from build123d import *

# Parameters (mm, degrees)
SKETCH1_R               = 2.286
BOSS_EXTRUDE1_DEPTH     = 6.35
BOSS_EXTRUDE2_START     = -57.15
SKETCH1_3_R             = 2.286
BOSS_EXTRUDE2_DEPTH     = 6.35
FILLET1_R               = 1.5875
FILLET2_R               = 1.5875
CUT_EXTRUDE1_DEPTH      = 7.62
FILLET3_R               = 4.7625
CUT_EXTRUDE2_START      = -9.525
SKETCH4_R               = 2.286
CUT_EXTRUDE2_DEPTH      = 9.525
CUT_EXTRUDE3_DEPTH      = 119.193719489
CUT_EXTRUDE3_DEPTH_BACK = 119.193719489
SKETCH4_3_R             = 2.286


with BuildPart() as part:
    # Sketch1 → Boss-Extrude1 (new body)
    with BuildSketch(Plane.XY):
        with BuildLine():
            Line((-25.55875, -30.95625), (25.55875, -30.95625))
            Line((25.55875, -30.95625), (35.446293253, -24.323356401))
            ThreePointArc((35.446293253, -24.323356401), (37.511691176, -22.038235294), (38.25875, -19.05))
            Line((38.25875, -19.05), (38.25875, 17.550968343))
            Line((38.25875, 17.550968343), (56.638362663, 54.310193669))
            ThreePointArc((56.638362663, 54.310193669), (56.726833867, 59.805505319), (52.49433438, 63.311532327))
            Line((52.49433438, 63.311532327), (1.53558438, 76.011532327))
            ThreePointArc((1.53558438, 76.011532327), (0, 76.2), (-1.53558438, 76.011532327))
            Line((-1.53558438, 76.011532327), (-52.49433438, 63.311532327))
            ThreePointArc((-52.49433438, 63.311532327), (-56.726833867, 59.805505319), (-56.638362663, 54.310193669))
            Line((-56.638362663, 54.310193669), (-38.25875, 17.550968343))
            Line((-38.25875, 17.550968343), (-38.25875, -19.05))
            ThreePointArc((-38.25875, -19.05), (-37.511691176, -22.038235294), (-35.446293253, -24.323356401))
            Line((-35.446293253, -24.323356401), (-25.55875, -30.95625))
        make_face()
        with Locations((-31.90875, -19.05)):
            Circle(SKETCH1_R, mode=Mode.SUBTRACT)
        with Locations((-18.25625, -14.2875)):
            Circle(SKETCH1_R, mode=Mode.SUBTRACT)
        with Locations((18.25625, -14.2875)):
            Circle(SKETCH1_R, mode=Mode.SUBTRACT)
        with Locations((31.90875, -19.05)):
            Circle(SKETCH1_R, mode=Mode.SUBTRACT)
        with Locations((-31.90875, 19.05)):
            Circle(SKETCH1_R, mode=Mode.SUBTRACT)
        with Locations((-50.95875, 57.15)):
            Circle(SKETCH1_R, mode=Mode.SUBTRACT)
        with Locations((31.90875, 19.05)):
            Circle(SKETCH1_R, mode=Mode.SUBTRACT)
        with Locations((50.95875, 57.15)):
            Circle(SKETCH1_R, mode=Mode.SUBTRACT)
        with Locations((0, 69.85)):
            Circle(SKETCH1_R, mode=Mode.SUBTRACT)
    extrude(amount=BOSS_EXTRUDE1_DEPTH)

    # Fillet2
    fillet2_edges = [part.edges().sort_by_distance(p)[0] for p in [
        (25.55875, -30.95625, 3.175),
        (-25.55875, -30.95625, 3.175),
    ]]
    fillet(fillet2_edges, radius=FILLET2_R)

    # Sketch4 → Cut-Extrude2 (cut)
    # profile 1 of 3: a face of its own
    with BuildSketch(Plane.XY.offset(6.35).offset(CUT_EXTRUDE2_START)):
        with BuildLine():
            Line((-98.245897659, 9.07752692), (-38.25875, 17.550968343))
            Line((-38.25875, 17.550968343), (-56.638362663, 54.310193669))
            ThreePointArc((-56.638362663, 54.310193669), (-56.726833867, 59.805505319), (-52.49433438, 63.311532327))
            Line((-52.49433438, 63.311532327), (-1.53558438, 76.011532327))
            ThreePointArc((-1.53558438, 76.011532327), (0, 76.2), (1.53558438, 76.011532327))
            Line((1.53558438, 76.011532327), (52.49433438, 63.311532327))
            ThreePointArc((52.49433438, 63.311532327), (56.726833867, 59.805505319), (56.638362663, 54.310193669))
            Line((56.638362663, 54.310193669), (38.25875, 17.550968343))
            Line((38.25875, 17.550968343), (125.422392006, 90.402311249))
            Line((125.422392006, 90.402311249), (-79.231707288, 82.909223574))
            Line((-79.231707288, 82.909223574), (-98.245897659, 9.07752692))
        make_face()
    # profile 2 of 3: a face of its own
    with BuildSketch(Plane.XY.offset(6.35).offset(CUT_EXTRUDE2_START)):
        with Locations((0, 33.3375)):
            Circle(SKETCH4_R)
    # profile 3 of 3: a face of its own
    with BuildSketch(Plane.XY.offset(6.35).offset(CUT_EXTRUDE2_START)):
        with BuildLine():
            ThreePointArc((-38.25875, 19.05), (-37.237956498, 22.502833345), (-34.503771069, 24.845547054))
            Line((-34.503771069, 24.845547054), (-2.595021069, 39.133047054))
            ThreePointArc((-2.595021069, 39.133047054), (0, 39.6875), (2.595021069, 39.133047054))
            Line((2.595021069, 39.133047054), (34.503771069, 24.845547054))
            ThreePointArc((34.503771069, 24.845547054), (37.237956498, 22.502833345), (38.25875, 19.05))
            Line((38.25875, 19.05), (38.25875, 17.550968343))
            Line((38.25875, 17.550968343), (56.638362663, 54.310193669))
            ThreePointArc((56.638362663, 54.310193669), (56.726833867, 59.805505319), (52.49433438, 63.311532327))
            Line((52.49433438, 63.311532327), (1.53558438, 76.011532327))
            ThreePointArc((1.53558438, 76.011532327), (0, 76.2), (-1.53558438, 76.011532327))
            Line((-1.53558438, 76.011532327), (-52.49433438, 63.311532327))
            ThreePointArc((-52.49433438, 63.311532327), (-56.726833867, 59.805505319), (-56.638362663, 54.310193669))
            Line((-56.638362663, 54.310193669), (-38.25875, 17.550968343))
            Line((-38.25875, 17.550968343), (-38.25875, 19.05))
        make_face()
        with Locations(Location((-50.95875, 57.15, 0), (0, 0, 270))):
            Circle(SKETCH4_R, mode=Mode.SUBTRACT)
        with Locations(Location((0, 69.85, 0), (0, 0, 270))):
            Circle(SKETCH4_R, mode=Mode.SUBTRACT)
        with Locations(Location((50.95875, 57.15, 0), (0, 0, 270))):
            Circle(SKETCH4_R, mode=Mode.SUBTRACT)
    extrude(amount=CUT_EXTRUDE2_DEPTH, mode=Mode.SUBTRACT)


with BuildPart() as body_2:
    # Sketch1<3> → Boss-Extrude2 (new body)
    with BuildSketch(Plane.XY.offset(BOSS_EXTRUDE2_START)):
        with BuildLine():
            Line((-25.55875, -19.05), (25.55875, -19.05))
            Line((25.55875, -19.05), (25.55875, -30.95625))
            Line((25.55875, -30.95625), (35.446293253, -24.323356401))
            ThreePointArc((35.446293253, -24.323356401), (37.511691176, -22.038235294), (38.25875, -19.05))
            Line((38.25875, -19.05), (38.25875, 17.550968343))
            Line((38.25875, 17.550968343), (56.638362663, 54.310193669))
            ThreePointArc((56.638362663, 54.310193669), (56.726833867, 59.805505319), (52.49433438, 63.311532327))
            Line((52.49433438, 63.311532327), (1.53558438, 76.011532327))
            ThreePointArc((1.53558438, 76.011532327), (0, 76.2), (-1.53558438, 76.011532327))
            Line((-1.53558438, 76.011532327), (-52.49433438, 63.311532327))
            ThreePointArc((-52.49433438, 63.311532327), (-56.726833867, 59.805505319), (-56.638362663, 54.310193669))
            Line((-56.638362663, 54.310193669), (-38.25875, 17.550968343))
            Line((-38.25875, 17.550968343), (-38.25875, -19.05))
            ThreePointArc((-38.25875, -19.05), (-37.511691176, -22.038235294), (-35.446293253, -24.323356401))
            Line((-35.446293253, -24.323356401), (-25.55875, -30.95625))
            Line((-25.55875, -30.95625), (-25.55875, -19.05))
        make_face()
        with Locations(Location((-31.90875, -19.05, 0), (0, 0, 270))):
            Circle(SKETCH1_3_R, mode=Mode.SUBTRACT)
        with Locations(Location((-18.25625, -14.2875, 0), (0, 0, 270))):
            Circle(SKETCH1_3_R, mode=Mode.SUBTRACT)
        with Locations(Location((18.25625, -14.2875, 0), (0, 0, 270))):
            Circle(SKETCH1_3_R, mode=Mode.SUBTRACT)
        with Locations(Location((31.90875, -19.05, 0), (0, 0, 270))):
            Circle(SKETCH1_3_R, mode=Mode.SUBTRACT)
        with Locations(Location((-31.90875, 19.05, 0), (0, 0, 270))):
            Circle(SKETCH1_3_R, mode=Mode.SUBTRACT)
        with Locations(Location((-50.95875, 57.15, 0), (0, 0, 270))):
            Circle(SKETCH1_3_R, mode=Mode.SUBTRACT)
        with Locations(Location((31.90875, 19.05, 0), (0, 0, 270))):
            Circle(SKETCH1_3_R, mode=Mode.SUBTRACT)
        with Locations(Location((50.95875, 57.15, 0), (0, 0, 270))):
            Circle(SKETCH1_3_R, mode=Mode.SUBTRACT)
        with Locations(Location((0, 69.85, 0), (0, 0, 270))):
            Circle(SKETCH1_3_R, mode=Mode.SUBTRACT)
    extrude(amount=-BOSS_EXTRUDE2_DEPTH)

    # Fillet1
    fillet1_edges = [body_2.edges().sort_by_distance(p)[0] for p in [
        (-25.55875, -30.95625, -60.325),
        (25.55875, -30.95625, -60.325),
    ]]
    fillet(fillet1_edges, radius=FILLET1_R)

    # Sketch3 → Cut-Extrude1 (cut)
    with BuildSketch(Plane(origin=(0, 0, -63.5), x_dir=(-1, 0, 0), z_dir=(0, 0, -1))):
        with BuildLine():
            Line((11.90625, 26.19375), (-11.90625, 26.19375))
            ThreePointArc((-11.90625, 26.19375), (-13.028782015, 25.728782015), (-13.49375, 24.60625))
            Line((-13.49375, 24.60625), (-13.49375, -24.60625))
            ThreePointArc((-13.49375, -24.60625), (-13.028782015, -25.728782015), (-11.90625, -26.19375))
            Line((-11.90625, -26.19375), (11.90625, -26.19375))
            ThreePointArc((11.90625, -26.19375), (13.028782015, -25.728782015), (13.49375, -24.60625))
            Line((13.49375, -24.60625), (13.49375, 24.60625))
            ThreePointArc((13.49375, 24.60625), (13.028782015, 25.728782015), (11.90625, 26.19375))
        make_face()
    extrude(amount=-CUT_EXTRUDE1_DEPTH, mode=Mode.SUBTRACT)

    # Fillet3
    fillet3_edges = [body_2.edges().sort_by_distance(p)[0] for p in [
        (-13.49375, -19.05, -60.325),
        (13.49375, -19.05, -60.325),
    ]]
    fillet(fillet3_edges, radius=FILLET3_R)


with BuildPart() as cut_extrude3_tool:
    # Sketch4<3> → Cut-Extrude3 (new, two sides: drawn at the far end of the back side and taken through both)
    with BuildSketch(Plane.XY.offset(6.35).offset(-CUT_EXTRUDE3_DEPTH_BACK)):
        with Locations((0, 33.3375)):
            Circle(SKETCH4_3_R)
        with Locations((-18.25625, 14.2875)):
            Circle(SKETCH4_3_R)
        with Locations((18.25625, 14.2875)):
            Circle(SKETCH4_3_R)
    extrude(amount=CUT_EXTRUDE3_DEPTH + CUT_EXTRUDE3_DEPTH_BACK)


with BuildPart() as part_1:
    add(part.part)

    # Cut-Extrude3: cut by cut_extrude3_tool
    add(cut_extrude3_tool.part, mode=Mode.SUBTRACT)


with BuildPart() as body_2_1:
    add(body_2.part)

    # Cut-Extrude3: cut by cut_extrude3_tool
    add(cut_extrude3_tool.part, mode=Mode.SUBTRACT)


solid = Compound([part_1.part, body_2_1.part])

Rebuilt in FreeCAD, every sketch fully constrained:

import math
import FreeCAD as App
import Part
import Sketcher
Q = App.Units.Quantity


def edges_at(feature, points):
    """Names of the edges that pass closest to the given points."""
    edges = feature.Shape.Edges
    near = lambda p: min(range(len(edges)), key=lambda i: edges[i].distToShape(Part.Vertex(*p))[0])
    return sorted({f"Edge{near(p) + 1}" for p in points})

doc = App.newDocument("Part")
params = doc.addObject("Spreadsheet::Sheet", "Params")
for row, (alias, value) in enumerate([
    ("sketch1_diameter", "0.18 in"),
    ("sketch1_radius", "0.25 in"),
    ("sketch1_length", "0.46875 in"),
    ("pad1_length", "0.25 in"),
    ("fillet_radius", "0.0625 in"),
    ("sketch2_diameter", "0.18 in"),
    ("sketch2_radius", "0.25 in"),
    ("pocket1_length", "0.375 in"),
    ("sketch3_diameter", "0.18 in"),
    ("sketch3_radius", "0.25 in"),
    ("sketch3_height", "0.46875 in"),
    ("pad2_length", "0.25 in"),
    ("fillet2_radius", "0.0625 in"),
    ("sketch4_radius", "0.0625 in"),
    ("pocket2_length", "0.3 in"),
    ("fillet3_radius", "0.1875 in"),
    ("sketch5_diameter", "0.18 in"),
    ("pad3_length", "119.193719 mm"),
    ("pad3_length2", "119.193719 mm"),
], start=1):
    params.set(f"A{row}", alias)
    params.set(f"B{row}", "=" + value)
    params.setAlias(f"B{row}", alias)

body = doc.addObject("PartDesign::Body", "Body")

# Sketch on XY plane
sketch1 = body.newObject("Sketcher::SketchObject", "Sketch")
sketch1.AttachmentSupport = (doc.getObject("XY_Plane"), [""])
sketch1.MapMode = "FlatFace"
sketch1.addGeometry([
    Part.LineSegment(App.Vector(-25.6, -31, 0), App.Vector(25.6, -31, 0)),  # 0
    Part.LineSegment(App.Vector(25.6, -31, 0), App.Vector(35.4, -24.3, 0)),  # 1
    Part.ArcOfCircle(Part.Circle(App.Vector(31.9, -19, 0), App.Vector(0, 0, 1), 6.4), math.radians(-56), math.radians(0)),  # 2
    Part.LineSegment(App.Vector(38.3, -19.1, 0), App.Vector(38.3, 17.6, 0)),  # 3
    Part.LineSegment(App.Vector(38.3, 17.6, 0), App.Vector(56.6, 54.3, 0)),  # 4
    Part.ArcOfCircle(Part.Circle(App.Vector(51, 57.1, 0), App.Vector(0, 0, 1), 6.4), math.radians(-27), math.radians(76)),  # 5
    Part.LineSegment(App.Vector(52.5, 63.3, 0), App.Vector(1.5, 76, 0)),  # 6
    Part.ArcOfCircle(Part.Circle(App.Vector(0, 69.8, 0), App.Vector(0, 0, 1), 6.4), math.radians(76), math.radians(104)),  # 7
    Part.LineSegment(App.Vector(-1.5, 76, 0), App.Vector(-52.5, 63.3, 0)),  # 8
    Part.ArcOfCircle(Part.Circle(App.Vector(-51, 57.1, 0), App.Vector(0, 0, 1), 6.4), math.radians(104), math.radians(207)),  # 9
    Part.LineSegment(App.Vector(-56.6, 54.3, 0), App.Vector(-38.3, 17.6, 0)),  # 10
    Part.LineSegment(App.Vector(-38.3, 17.6, 0), App.Vector(-38.3, -19.1, 0)),  # 11
    Part.ArcOfCircle(Part.Circle(App.Vector(-31.9, -19, 0), App.Vector(0, 0, 1), 6.4), math.radians(-180), math.radians(-124)),  # 12
    Part.LineSegment(App.Vector(-35.4, -24.3, 0), App.Vector(-25.6, -31, 0)),  # 13
    Part.Circle(App.Vector(-31.9, -19.1, 0), App.Vector(0, 0, 1), 2.3),  # 14
    Part.Circle(App.Vector(-18.3, -14.3, 0), App.Vector(0, 0, 1), 2.3),  # 15
    Part.Circle(App.Vector(-31.9, 19.1, 0), App.Vector(0, 0, 1), 2.3),  # 16
    Part.Circle(App.Vector(18.3, -14.3, 0), App.Vector(0, 0, 1), 2.3),  # 17
    Part.Circle(App.Vector(31.9, -19.1, 0), App.Vector(0, 0, 1), 2.3),  # 18
    Part.Circle(App.Vector(31.9, 19.1, 0), App.Vector(0, 0, 1), 2.3),  # 19
    Part.Circle(App.Vector(-51, 57.1, 0), App.Vector(0, 0, 1), 2.3),  # 20
    Part.Circle(App.Vector(0, 69.8, 0), App.Vector(0, 0, 1), 2.3),  # 21
    Part.Circle(App.Vector(51, 57.1, 0), App.Vector(0, 0, 1), 2.3),  # 22
], False)
sketch1.addConstraint([
    Sketcher.Constraint("Coincident", 0, 2, 1, 1),
    Sketcher.Constraint("Tangent", 1, 2, 2, 1),
    Sketcher.Constraint("Tangent", 2, 2, 3, 1),
    Sketcher.Constraint("Coincident", 3, 2, 4, 1),
    Sketcher.Constraint("Tangent", 4, 2, 5, 1),
    Sketcher.Constraint("Tangent", 5, 2, 6, 1),
    Sketcher.Constraint("Tangent", 6, 2, 7, 1),
    Sketcher.Constraint("Tangent", 7, 2, 8, 1),
    Sketcher.Constraint("Tangent", 8, 2, 9, 1),
    Sketcher.Constraint("Tangent", 9, 2, 10, 1),
    Sketcher.Constraint("Coincident", 10, 2, 11, 1),
    Sketcher.Constraint("Tangent", 11, 2, 12, 1),
    Sketcher.Constraint("Tangent", 12, 2, 13, 1),
    Sketcher.Constraint("Coincident", 13, 2, 0, 1),
    Sketcher.Constraint("Horizontal", 0),
    Sketcher.Constraint("Vertical", 3),
    Sketcher.Constraint("Vertical", 11),
    Sketcher.Constraint("Coincident", 14, 3, 12, 3),
    Sketcher.Constraint("Coincident", 18, 3, 2, 3),
    Sketcher.Constraint("Coincident", 20, 3, 9, 3),
    Sketcher.Constraint("Coincident", 21, 3, 7, 3),
    Sketcher.Constraint("Coincident", 22, 3, 5, 3),
    Sketcher.Constraint("Equal", 2, 5),
    Sketcher.Constraint("Equal", 5, 7),
    Sketcher.Constraint("Equal", 7, 9),
    Sketcher.Constraint("Equal", 9, 12),
    Sketcher.Constraint("Equal", 14, 15),
    Sketcher.Constraint("Equal", 15, 16),
    Sketcher.Constraint("Equal", 16, 17),
    Sketcher.Constraint("Equal", 17, 18),
    Sketcher.Constraint("Equal", 18, 19),
    Sketcher.Constraint("Equal", 19, 20),
    Sketcher.Constraint("Equal", 20, 21),
    Sketcher.Constraint("Equal", 21, 22),
    Sketcher.Constraint("Symmetric", 2, 3, 16, 3, -1, 1),
    Sketcher.Constraint("Symmetric", 12, 3, 19, 3, -1, 1),
    Sketcher.Constraint("Symmetric", 5, 3, 9, 3, -2),
    Sketcher.Constraint("Symmetric", 2, 3, 12, 3, -2),
    Sketcher.Constraint("Symmetric", 15, 3, 17, 3, -2),
    Sketcher.Constraint("PointOnObject", 7, 3, -2),
    Sketcher.Constraint("Horizontal", 4, 2, 9, 2),
    Sketcher.Constraint("Horizontal", 1, 2, 12, 2),
    Sketcher.Constraint("Diameter", 14, Q("0.18 in")),
    Sketcher.Constraint("Radius", 2, Q("0.25 in")),
    Sketcher.Constraint("DistanceY", 2, 3, 5, 3, Q("3 in")),
    Sketcher.Constraint("DistanceY", 16, 3, 7, 3, Q("2 in")),
    Sketcher.Constraint("DistanceY", 5, 3, 7, 3, Q("0.5 in")),
    Sketcher.Constraint("DistanceX", 0, 2, 2, 2, Q("0.5 in")),
    Sketcher.Constraint("DistanceX", 2, 3, 5, 3, Q("0.75 in")),
    Sketcher.Constraint("Distance", 1, Q("0.46875 in")),
    Sketcher.Constraint("DistanceX", 0, 1, 0, 2, Q("2.0125 in")),
    Sketcher.Constraint("DistanceX", 15, 3, -1, 1, Q("0.71875 in")),
    Sketcher.Constraint("DistanceY", 15, 3, -1, 1, Q("0.5625 in")),
    Sketcher.Constraint("DistanceY", 3, 1, 3, 2, Q("36.600968 mm")),
])
sketch1.setExpression("Constraints[42]", "Params.sketch1_diameter")
sketch1.setExpression("Constraints[43]", "Params.sketch1_radius")
sketch1.setExpression("Constraints[49]", "Params.sketch1_length")
pad1 = body.newObject("PartDesign::Pad", "Pad")
pad1.Profile = sketch1
pad1.setExpression("Length", "Params.pad1_length")
doc.recompute()

fillet = body.newObject("PartDesign::Fillet", "Fillet")
fillet.Base = (pad1, edges_at(pad1, [(25.559, -30.956, 3.175), (-25.559, -30.956, 3.175)]))
fillet.setExpression("Radius", "Params.fillet_radius")

# Sketch on XY plane
sketch2 = body.newObject("Sketcher::SketchObject", "Sketch001")
sketch2.AttachmentSupport = (doc.getObject("XY_Plane"), [""])
sketch2.MapMode = "FlatFace"
sketch2.AttachmentOffset = App.Placement(App.Vector(0, 0, -0.125 * 25.4), App.Rotation())
sketch2.addGeometry([
    Part.LineSegment(App.Vector(-98.2, 9.1, 0), App.Vector(-38.3, 17.6, 0)),  # 0
    Part.LineSegment(App.Vector(-38.3, 17.6, 0), App.Vector(-38.3, 19.1, 0)),  # 1
    Part.ArcOfCircle(Part.Circle(App.Vector(-31.9, 19.1, 0), App.Vector(0, 0, 1), 6.3), math.radians(114), math.radians(180)),  # 2
    Part.LineSegment(App.Vector(-34.5, 24.8, 0), App.Vector(-2.6, 39.1, 0)),  # 3
    Part.ArcOfCircle(Part.Circle(App.Vector(0, 33.3, 0), App.Vector(0, 0, 1), 6.4), math.radians(66), math.radians(114)),  # 4
    Part.LineSegment(App.Vector(2.6, 39.1, 0), App.Vector(34.5, 24.8, 0)),  # 5
    Part.ArcOfCircle(Part.Circle(App.Vector(31.9, 19.1, 0), App.Vector(0, 0, 1), 6.3), math.radians(0), math.radians(66)),  # 6
    Part.LineSegment(App.Vector(38.3, 19.1, 0), App.Vector(38.3, 17.6, 0)),  # 7
    Part.LineSegment(App.Vector(38.3, 17.6, 0), App.Vector(125.4, 90.4, 0)),  # 8
    Part.LineSegment(App.Vector(125.4, 90.4, 0), App.Vector(-79.2, 82.9, 0)),  # 9
    Part.LineSegment(App.Vector(-79.2, 82.9, 0), App.Vector(-98.2, 9.1, 0)),  # 10
    Part.Circle(App.Vector(0, 69.8, 0), App.Vector(0, 0, 1), 2.3),  # 11
    Part.Circle(App.Vector(51, 57.1, 0), App.Vector(0, 0, 1), 2.3),  # 12
    Part.Circle(App.Vector(-51, 57.1, 0), App.Vector(0, 0, 1), 2.3),  # 13
    Part.Circle(App.Vector(0, 33.3, 0), App.Vector(0, 0, 1), 2.3),  # 14
], False)
sketch2.addConstraint([
    Sketcher.Constraint("Coincident", 0, 2, 1, 1),
    Sketcher.Constraint("Tangent", 1, 2, 2, 2),
    Sketcher.Constraint("Tangent", 2, 1, 3, 1),
    Sketcher.Constraint("Tangent", 3, 2, 4, 2),
    Sketcher.Constraint("Tangent", 4, 1, 5, 1),
    Sketcher.Constraint("Tangent", 5, 2, 6, 2),
    Sketcher.Constraint("Tangent", 6, 1, 7, 1),
    Sketcher.Constraint("Coincident", 7, 2, 8, 1),
    Sketcher.Constraint("Coincident", 8, 2, 9, 1),
    Sketcher.Constraint("Coincident", 9, 2, 10, 1),
    Sketcher.Constraint("Coincident", 10, 2, 0, 1),
    Sketcher.Constraint("Vertical", 1),
    Sketcher.Constraint("Vertical", 7),
    Sketcher.Constraint("Coincident", 14, 3, 4, 3),
    Sketcher.Constraint("Equal", 2, 4),
    Sketcher.Constraint("Equal", 4, 6),
    Sketcher.Constraint("Equal", 11, 12),
    Sketcher.Constraint("Equal", 12, 13),
    Sketcher.Constraint("Equal", 13, 14),
    Sketcher.Constraint("Symmetric", 2, 3, 6, 3, -2),
    Sketcher.Constraint("Symmetric", 12, 3, 13, 3, -2),
    Sketcher.Constraint("PointOnObject", 4, 3, -2),
    Sketcher.Constraint("PointOnObject", 11, 3, -2),
    Sketcher.Constraint("Horizontal", 0, 2, 7, 2),
    Sketcher.Constraint("Diameter", 11, Q("0.18 in")),
    Sketcher.Constraint("Radius", 2, Q("0.25 in")),
    Sketcher.Constraint("DistanceY", 2, 3, 11, 3, Q("2 in")),
    Sketcher.Constraint("DistanceY", 6, 3, 12, 3, Q("1.5 in")),
    Sketcher.Constraint("DistanceX", 13, 3, 0, 2, Q("0.5 in")),
    Sketcher.Constraint("DistanceY", -1, 1, 2, 3, Q("0.75 in")),
    Sketcher.Constraint("DistanceY", -1, 1, 4, 3, Q("1.3125 in")),
    Sketcher.Constraint("DistanceX", 2, 3, 6, 3, Q("2.5125 in")),
    Sketcher.Constraint("DistanceY", 10, 2, 0, 2, Q("0.3336001 in")),
    Sketcher.Constraint("DistanceY", 1, 1, 1, 2, Q("1.499032 mm")),
    Sketcher.Constraint("DistanceY", -1, 1, 8, 2, Q("90.402311 mm")),
    Sketcher.Constraint("DistanceX", 5, 2, 8, 2, Q("90.918621 mm")),
    Sketcher.Constraint("Distance", 0, Q("60.582647 mm")),
    Sketcher.Constraint("Distance", 9, Q("204.791227 mm")),
    Sketcher.Constraint("Distance", 10, Q("76.240795 mm")),
])
sketch2.setExpression("Constraints[24]", "Params.sketch2_diameter")
sketch2.setExpression("Constraints[25]", "Params.sketch2_radius")
pocket1 = body.newObject("PartDesign::Pocket", "Pocket")
pocket1.Profile = sketch2
pocket1.setExpression("Length", "Params.pocket1_length")
pocket1.Reversed = True
body2 = doc.addObject("PartDesign::Body", "Body001")

# Sketch on XY plane
sketch3 = body2.newObject("Sketcher::SketchObject", "Sketch002")
sketch3.AttachmentSupport = (doc.getObject("XY_Plane001"), [""])
sketch3.MapMode = "FlatFace"
sketch3.AttachmentOffset = App.Placement(App.Vector(0, 0, -2.25 * 25.4), App.Rotation())
sketch3.addGeometry([
    Part.LineSegment(App.Vector(-25.6, -19.1, 0), App.Vector(25.6, -19.1, 0)),  # 0
    Part.LineSegment(App.Vector(25.6, -19.1, 0), App.Vector(25.6, -31, 0)),  # 1
    Part.LineSegment(App.Vector(25.6, -31, 0), App.Vector(35.4, -24.3, 0)),  # 2
    Part.ArcOfCircle(Part.Circle(App.Vector(31.9, -19, 0), App.Vector(0, 0, 1), 6.4), math.radians(-56), math.radians(0)),  # 3
    Part.LineSegment(App.Vector(38.3, -19.1, 0), App.Vector(38.3, 17.6, 0)),  # 4
    Part.LineSegment(App.Vector(38.3, 17.6, 0), App.Vector(56.6, 54.3, 0)),  # 5
    Part.ArcOfCircle(Part.Circle(App.Vector(51, 57.1, 0), App.Vector(0, 0, 1), 6.4), math.radians(-27), math.radians(76)),  # 6
    Part.LineSegment(App.Vector(52.5, 63.3, 0), App.Vector(1.5, 76, 0)),  # 7
    Part.ArcOfCircle(Part.Circle(App.Vector(0, 69.8, 0), App.Vector(0, 0, 1), 6.4), math.radians(76), math.radians(104)),  # 8
    Part.LineSegment(App.Vector(-1.5, 76, 0), App.Vector(-52.5, 63.3, 0)),  # 9
    Part.ArcOfCircle(Part.Circle(App.Vector(-51, 57.1, 0), App.Vector(0, 0, 1), 6.4), math.radians(104), math.radians(207)),  # 10
    Part.LineSegment(App.Vector(-56.6, 54.3, 0), App.Vector(-38.3, 17.6, 0)),  # 11
    Part.LineSegment(App.Vector(-38.3, 17.6, 0), App.Vector(-38.3, -19.1, 0)),  # 12
    Part.ArcOfCircle(Part.Circle(App.Vector(-31.9, -19, 0), App.Vector(0, 0, 1), 6.4), math.radians(-180), math.radians(-124)),  # 13
    Part.LineSegment(App.Vector(-35.4, -24.3, 0), App.Vector(-25.6, -31, 0)),  # 14
    Part.LineSegment(App.Vector(-25.6, -31, 0), App.Vector(-25.6, -19.1, 0)),  # 15
    Part.Circle(App.Vector(-31.9, -19.1, 0), App.Vector(0, 0, 1), 2.3),  # 16
    Part.Circle(App.Vector(-18.3, -14.3, 0), App.Vector(0, 0, 1), 2.3),  # 17
    Part.Circle(App.Vector(-31.9, 19.1, 0), App.Vector(0, 0, 1), 2.3),  # 18
    Part.Circle(App.Vector(18.3, -14.3, 0), App.Vector(0, 0, 1), 2.3),  # 19
    Part.Circle(App.Vector(31.9, -19.1, 0), App.Vector(0, 0, 1), 2.3),  # 20
    Part.Circle(App.Vector(31.9, 19.1, 0), App.Vector(0, 0, 1), 2.3),  # 21
    Part.Circle(App.Vector(-51, 57.1, 0), App.Vector(0, 0, 1), 2.3),  # 22
    Part.Circle(App.Vector(0, 69.8, 0), App.Vector(0, 0, 1), 2.3),  # 23
    Part.Circle(App.Vector(51, 57.1, 0), App.Vector(0, 0, 1), 2.3),  # 24
], False)
sketch3.addConstraint([
    Sketcher.Constraint("Coincident", 0, 2, 1, 1),
    Sketcher.Constraint("Coincident", 1, 2, 2, 1),
    Sketcher.Constraint("Tangent", 2, 2, 3, 1),
    Sketcher.Constraint("Tangent", 3, 2, 4, 1),
    Sketcher.Constraint("Coincident", 4, 2, 5, 1),
    Sketcher.Constraint("Tangent", 5, 2, 6, 1),
    Sketcher.Constraint("Tangent", 6, 2, 7, 1),
    Sketcher.Constraint("Tangent", 7, 2, 8, 1),
    Sketcher.Constraint("Tangent", 8, 2, 9, 1),
    Sketcher.Constraint("Tangent", 9, 2, 10, 1),
    Sketcher.Constraint("Tangent", 10, 2, 11, 1),
    Sketcher.Constraint("Coincident", 11, 2, 12, 1),
    Sketcher.Constraint("Tangent", 12, 2, 13, 1),
    Sketcher.Constraint("Tangent", 13, 2, 14, 1),
    Sketcher.Constraint("Coincident", 14, 2, 15, 1),
    Sketcher.Constraint("Coincident", 15, 2, 0, 1),
    Sketcher.Constraint("Horizontal", 0),
    Sketcher.Constraint("Vertical", 1),
    Sketcher.Constraint("Vertical", 4),
    Sketcher.Constraint("Vertical", 12),
    Sketcher.Constraint("Vertical", 15),
    Sketcher.Constraint("Coincident", 16, 3, 13, 3),
    Sketcher.Constraint("Coincident", 20, 3, 3, 3),
    Sketcher.Constraint("Coincident", 22, 3, 10, 3),
    Sketcher.Constraint("Coincident", 23, 3, 8, 3),
    Sketcher.Constraint("Coincident", 24, 3, 6, 3),
    Sketcher.Constraint("Equal", 3, 6),
    Sketcher.Constraint("Equal", 6, 8),
    Sketcher.Constraint("Equal", 8, 10),
    Sketcher.Constraint("Equal", 10, 13),
    Sketcher.Constraint("Equal", 16, 17),
    Sketcher.Constraint("Equal", 17, 18),
    Sketcher.Constraint("Equal", 18, 19),
    Sketcher.Constraint("Equal", 19, 20),
    Sketcher.Constraint("Equal", 20, 21),
    Sketcher.Constraint("Equal", 21, 22),
    Sketcher.Constraint("Equal", 22, 23),
    Sketcher.Constraint("Equal", 23, 24),
    Sketcher.Constraint("Symmetric", 3, 3, 18, 3, -1, 1),
    Sketcher.Constraint("Symmetric", 13, 3, 21, 3, -1, 1),
    Sketcher.Constraint("Symmetric", 6, 3, 10, 3, -2),
    Sketcher.Constraint("Symmetric", 3, 3, 13, 3, -2),
    Sketcher.Constraint("Symmetric", 17, 3, 19, 3, -2),
    Sketcher.Constraint("Symmetric", 1, 2, 14, 2, -2),
    Sketcher.Constraint("PointOnObject", 8, 3, -2),
    Sketcher.Constraint("Horizontal", 20, 3, 0, 2),
    Sketcher.Constraint("Horizontal", 5, 2, 10, 2),
    Sketcher.Constraint("Diameter", 16, Q("0.18 in")),
    Sketcher.Constraint("Radius", 3, Q("0.25 in")),
    Sketcher.Constraint("DistanceY", 3, 3, 6, 3, Q("3 in")),
    Sketcher.Constraint("DistanceY", 18, 3, 8, 3, Q("2 in")),
    Sketcher.Constraint("DistanceY", 6, 3, 8, 3, Q("0.5 in")),
    Sketcher.Constraint("DistanceX", 0, 2, 3, 2, Q("0.5 in")),
    Sketcher.Constraint("DistanceY", 1, 2, 1, 1, Q("0.46875 in")),
    Sketcher.Constraint("DistanceX", 3, 3, 6, 3, Q("0.75 in")),
    Sketcher.Constraint("DistanceX", 0, 1, 0, 2, Q("2.0125 in")),
    Sketcher.Constraint("DistanceX", 17, 3, -1, 1, Q("0.71875 in")),
    Sketcher.Constraint("DistanceY", 17, 3, -1, 1, Q("0.5625 in")),
    Sketcher.Constraint("DistanceY", 4, 1, 4, 2, Q("36.600968 mm")),
])
sketch3.setExpression("Constraints[47]", "Params.sketch3_diameter")
sketch3.setExpression("Constraints[48]", "Params.sketch3_radius")
sketch3.setExpression("Constraints[53]", "Params.sketch3_height")
pad2 = body2.newObject("PartDesign::Pad", "Pad001")
pad2.Profile = sketch3
pad2.setExpression("Length", "Params.pad2_length")
pad2.Reversed = True
doc.recompute()

fillet2 = body2.newObject("PartDesign::Fillet", "Fillet001")
fillet2.Base = (pad2, edges_at(pad2, [(-25.559, -30.956, -60.325), (25.559, -30.956, -60.325)]))
fillet2.setExpression("Radius", "Params.fillet2_radius")

# Sketch on XY plane
sketch4 = body2.newObject("Sketcher::SketchObject", "Sketch003")
sketch4.AttachmentSupport = (doc.getObject("XY_Plane001"), [""])
sketch4.MapMode = "FlatFace"
sketch4.AttachmentOffset = App.Placement(App.Vector(0, 0, -2.5 * 25.4), App.Rotation())
sketch4.addGeometry([
    Part.LineSegment(App.Vector(-11.9, 26.2, 0), App.Vector(11.9, 26.2, 0)),  # 0
    Part.ArcOfCircle(Part.Circle(App.Vector(11.9, 24.6, 0), App.Vector(0, 0, 1), 1.6), math.radians(0), math.radians(90)),  # 1
    Part.LineSegment(App.Vector(13.5, 24.6, 0), App.Vector(13.5, -24.6, 0)),  # 2
    Part.ArcOfCircle(Part.Circle(App.Vector(11.9, -24.6, 0), App.Vector(0, 0, 1), 1.6), math.radians(-90), math.radians(0)),  # 3
    Part.LineSegment(App.Vector(11.9, -26.2, 0), App.Vector(-11.9, -26.2, 0)),  # 4
    Part.ArcOfCircle(Part.Circle(App.Vector(-11.9, -24.6, 0), App.Vector(0, 0, 1), 1.6), math.radians(180), math.radians(270)),  # 5
    Part.LineSegment(App.Vector(-13.5, -24.6, 0), App.Vector(-13.5, 24.6, 0)),  # 6
    Part.ArcOfCircle(Part.Circle(App.Vector(-11.9, 24.6, 0), App.Vector(0, 0, 1), 1.6), math.radians(90), math.radians(180)),  # 7
], False)
sketch4.addConstraint([
    Sketcher.Constraint("Tangent", 0, 2, 1, 2),
    Sketcher.Constraint("Tangent", 1, 1, 2, 1),
    Sketcher.Constraint("Tangent", 2, 2, 3, 2),
    Sketcher.Constraint("Tangent", 3, 1, 4, 1),
    Sketcher.Constraint("Tangent", 4, 2, 5, 2),
    Sketcher.Constraint("Tangent", 5, 1, 6, 1),
    Sketcher.Constraint("Tangent", 6, 2, 7, 2),
    Sketcher.Constraint("Tangent", 7, 1, 0, 1),
    Sketcher.Constraint("Horizontal", 0),
    Sketcher.Constraint("Vertical", 2),
    Sketcher.Constraint("Horizontal", 4),
    Sketcher.Constraint("Vertical", 6),
    Sketcher.Constraint("Equal", 1, 3),
    Sketcher.Constraint("Equal", 3, 5),
    Sketcher.Constraint("Equal", 5, 7),
    Sketcher.Constraint("Symmetric", 1, 3, 5, 3, -1, 1),
    Sketcher.Constraint("Radius", 1, Q("0.0625 in")),
    Sketcher.Constraint("DistanceY", 3, 3, 0, 2, Q("2 in")),
    Sketcher.Constraint("DistanceX", 7, 3, 1, 1, Q("1 in")),
])
sketch4.setExpression("Constraints[16]", "Params.sketch4_radius")
pocket2 = body2.newObject("PartDesign::Pocket", "Pocket001")
pocket2.Profile = sketch4
pocket2.setExpression("Length", "Params.pocket2_length")
pocket2.Reversed = True
doc.recompute()

fillet3 = body2.newObject("PartDesign::Fillet", "Fillet002")
fillet3.Base = (pocket2, edges_at(pocket2, [(-13.494, -19.05, -60.325), (13.494, -19.05, -60.325)]))
fillet3.setExpression("Radius", "Params.fillet3_radius")
body3 = doc.addObject("PartDesign::Body", "Body002")
body3.AllowCompound = True

# Sketch on XY plane
sketch5 = body3.newObject("Sketcher::SketchObject", "Sketch004")
sketch5.AttachmentSupport = (doc.getObject("XY_Plane002"), [""])
sketch5.MapMode = "FlatFace"
sketch5.AttachmentOffset = App.Placement(App.Vector(0, 0, 0.25 * 25.4), App.Rotation())
sketch5.addGeometry([
    Part.Circle(App.Vector(0, 33.3, 0), App.Vector(0, 0, 1), 2.3),
    Part.Circle(App.Vector(-18.3, 14.3, 0), App.Vector(0, 0, 1), 2.3),
    Part.Circle(App.Vector(18.3, 14.3, 0), App.Vector(0, 0, 1), 2.3),
], False)
sketch5.addConstraint([
    Sketcher.Constraint("Equal", 0, 1),
    Sketcher.Constraint("Equal", 1, 2),
    Sketcher.Constraint("Symmetric", 1, 3, 2, 3, -2),
    Sketcher.Constraint("PointOnObject", 0, 3, -2),
    Sketcher.Constraint("Diameter", 0, Q("0.18 in")),
    Sketcher.Constraint("DistanceY", 1, 3, 0, 3, Q("0.75 in")),
    Sketcher.Constraint("DistanceY", -1, 1, 0, 3, Q("1.3125 in")),
    Sketcher.Constraint("DistanceX", 1, 3, -1, 1, Q("0.71875 in")),
])
sketch5.setExpression("Constraints[4]", "Params.sketch5_diameter")
pad3 = body3.newObject("PartDesign::Pad", "Pad002")
pad3.Profile = sketch5
pad3.Type = "TwoLengths"
pad3.setExpression("Length", "Params.pad3_length")
pad3.setExpression("Length2", "Params.pad3_length2")
doc.recompute()

body4 = doc.addObject("PartDesign::Body", "Body003")
body4.BaseFeature = body3
boolean = body.newObject("PartDesign::Boolean", "Boolean")
boolean.Type = "Cut"
boolean.addObjects([body4])
doc.recompute()

boolean2 = body2.newObject("PartDesign::Boolean", "Boolean001")
boolean2.Type = "Cut"
boolean2.addObjects([body3])

doc.recompute()
